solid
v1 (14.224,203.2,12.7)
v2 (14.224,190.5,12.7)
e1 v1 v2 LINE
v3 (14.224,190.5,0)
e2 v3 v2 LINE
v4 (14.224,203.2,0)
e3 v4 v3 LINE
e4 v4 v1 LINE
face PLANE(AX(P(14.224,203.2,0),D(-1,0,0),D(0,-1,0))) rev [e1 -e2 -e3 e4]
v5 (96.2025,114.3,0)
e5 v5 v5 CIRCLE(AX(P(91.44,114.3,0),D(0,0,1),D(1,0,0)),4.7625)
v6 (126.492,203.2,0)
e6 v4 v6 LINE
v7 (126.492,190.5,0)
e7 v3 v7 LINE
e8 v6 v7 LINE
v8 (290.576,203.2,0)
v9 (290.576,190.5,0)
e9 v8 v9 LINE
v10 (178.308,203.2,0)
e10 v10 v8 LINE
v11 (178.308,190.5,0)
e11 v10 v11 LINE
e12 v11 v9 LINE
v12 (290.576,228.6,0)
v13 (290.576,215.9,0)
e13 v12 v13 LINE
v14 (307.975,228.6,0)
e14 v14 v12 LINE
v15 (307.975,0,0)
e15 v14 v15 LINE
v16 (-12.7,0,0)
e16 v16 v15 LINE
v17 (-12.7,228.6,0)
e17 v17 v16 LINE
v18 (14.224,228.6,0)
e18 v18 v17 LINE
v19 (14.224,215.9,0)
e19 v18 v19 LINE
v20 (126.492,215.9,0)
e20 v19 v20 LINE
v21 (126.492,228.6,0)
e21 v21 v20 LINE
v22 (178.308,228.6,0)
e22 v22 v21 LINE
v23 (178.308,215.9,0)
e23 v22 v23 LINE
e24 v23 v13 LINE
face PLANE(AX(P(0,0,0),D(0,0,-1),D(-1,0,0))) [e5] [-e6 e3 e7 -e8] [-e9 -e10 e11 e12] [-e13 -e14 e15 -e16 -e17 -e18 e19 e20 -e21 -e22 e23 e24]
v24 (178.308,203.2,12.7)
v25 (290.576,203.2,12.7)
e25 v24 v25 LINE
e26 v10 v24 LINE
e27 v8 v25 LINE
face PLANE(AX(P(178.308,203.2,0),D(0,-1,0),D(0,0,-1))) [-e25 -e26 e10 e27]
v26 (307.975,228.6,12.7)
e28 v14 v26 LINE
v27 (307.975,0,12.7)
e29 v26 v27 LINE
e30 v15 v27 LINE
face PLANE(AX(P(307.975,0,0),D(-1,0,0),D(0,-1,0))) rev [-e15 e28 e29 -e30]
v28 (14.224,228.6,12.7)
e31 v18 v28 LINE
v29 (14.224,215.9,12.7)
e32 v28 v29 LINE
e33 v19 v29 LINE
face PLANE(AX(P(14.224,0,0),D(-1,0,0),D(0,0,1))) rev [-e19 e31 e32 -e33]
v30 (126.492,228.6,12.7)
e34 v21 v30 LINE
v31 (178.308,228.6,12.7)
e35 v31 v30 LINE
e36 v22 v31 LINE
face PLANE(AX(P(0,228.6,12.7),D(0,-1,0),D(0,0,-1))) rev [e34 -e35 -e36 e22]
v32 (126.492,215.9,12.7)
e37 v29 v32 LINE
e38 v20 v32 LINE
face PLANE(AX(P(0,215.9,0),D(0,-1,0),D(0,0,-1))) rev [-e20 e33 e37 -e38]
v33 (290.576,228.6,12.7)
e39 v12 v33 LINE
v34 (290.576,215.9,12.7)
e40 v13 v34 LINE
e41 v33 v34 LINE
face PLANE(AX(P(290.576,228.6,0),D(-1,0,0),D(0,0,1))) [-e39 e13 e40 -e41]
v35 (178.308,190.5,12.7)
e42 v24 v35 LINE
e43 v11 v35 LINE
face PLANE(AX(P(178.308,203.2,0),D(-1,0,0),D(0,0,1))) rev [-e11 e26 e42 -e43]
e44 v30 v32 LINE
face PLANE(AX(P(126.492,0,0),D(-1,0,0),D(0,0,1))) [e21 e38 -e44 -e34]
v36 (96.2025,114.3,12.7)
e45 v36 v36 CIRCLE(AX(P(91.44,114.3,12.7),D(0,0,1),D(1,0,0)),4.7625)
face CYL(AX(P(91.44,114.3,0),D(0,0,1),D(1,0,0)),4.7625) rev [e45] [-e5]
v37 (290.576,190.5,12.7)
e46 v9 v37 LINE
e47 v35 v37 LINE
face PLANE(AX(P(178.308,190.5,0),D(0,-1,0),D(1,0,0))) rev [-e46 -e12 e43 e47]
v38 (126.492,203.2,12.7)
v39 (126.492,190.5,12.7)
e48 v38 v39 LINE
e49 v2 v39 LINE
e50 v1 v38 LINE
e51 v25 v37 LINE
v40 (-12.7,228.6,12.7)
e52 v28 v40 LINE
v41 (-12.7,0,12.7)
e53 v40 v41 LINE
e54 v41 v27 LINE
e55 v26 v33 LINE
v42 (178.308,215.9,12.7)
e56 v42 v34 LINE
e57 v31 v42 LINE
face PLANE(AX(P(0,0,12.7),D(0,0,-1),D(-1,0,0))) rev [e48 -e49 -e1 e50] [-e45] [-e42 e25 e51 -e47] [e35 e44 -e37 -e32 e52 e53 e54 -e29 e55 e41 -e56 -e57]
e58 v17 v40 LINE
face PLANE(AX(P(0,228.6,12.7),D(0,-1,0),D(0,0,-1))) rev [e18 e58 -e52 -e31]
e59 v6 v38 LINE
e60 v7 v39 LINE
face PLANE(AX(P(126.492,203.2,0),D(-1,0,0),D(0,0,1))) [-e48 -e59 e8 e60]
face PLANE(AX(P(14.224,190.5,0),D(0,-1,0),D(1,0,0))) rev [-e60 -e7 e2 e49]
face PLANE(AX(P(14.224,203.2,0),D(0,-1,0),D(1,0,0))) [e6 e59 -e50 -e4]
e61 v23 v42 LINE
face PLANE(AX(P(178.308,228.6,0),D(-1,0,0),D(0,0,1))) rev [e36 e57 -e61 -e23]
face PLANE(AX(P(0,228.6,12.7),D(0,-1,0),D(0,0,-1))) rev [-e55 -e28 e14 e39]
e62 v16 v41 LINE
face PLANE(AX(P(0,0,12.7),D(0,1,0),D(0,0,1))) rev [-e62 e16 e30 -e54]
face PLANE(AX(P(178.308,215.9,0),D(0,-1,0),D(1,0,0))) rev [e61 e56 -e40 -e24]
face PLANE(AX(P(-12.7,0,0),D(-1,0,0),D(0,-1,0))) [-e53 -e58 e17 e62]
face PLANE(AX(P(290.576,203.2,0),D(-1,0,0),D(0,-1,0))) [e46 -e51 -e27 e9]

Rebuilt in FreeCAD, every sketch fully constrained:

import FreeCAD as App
import Part
import Sketcher

V = App.Vector
Q = App.Units.Quantity


def add_polygon(sketch, points):
    """Adds a closed chain of lines whose ends are joined by coincident constraints."""
    first, n = sketch.GeometryCount, len(points)
    for a, b in zip(points, points[1:] + points[:1]):
        sketch.addGeometry(Part.LineSegment(App.Vector(*a, 0), App.Vector(*b, 0)), False)
    for i in range(n):
        sketch.addConstraint(Sketcher.Constraint("Coincident", first + i, 2, first + (i + 1) % n, 1))

doc = App.newDocument("Part")
body = doc.addObject("PartDesign::Body", "Body")

sketch1 = body.newObject("Sketcher::SketchObject", "Sketch")
sketch1.AttachmentSupport = (doc.getObject("XY_Plane"), [""])
sketch1.MapMode = "FlatFace"
add_polygon(sketch1, [(0, 228.6), (0, 0), (304.8, 0), (304.8, 228.6)])
sketch1.addConstraint([
    Sketcher.Constraint("Vertical", 0),
    Sketcher.Constraint("Horizontal", 1),
    Sketcher.Constraint("Vertical", 2),
    Sketcher.Constraint("Horizontal", 3),
    Sketcher.Constraint("Coincident", 0, 2, -1, 1),
    Sketcher.Constraint("DistanceX", 1, 1, 1, 2, Q("12 in")),
    Sketcher.Constraint("DistanceY", 0, 2, 0, 1, Q("9 in")),
])
pad1 = body.newObject("PartDesign::Pad", "Pad")
pad1.Profile = sketch1
pad1.Length = Q("0.5 in")

sketch2 = body.newObject("Sketcher::SketchObject", "Sketch001")
sketch2.AttachmentSupport = (doc.getObject("XY_Plane"), [""])
sketch2.MapMode = "FlatFace"
sketch2.AttachmentOffset = App.Placement(V(0, 0, 0.5 * 25.4), App.Rotation())
sketch2.addGeometry(Part.Circle(V(91.44, 114.3, 0), V(0, 0, 1), 4.7625), False)
sketch2.addConstraint([
    Sketcher.Constraint("Diameter", 0, Q("0.375 in")),
    Sketcher.Constraint("DistanceX", -1, 1, 0, 3, Q("3.6 in")),
    Sketcher.Constraint("DistanceY", -1, 1, 0, 3, Q("4.5 in")),
])
pocket1 = body.newObject("PartDesign::Pocket", "Pocket")
pocket1.Profile = sketch2
pocket1.Length = Q("0.5 in")

sketch3 = body.newObject("Sketcher::SketchObject", "Sketch002")
sketch3.AttachmentSupport = (doc.getObject("XY_Plane"), [""])
sketch3.MapMode = "FlatFace"
sketch3.AttachmentOffset = App.Placement(V(0, 0, 0.5 * 25.4), App.Rotation())
add_polygon(sketch3, [(14.224, 228.6), (14.224, 215.9), (126.492, 215.9), (126.492, 228.6)])
add_polygon(sketch3, [(178.308, 228.6), (178.308, 215.9), (290.576, 215.9), (290.576, 228.6)])
add_polygon(sketch3, [(14.224, 203.2), (14.224, 190.5), (126.492, 190.5), (126.492, 203.2)])
add_polygon(sketch3, [(178.308, 203.2), (178.308, 190.5), (290.576, 190.5), (290.576, 203.2)])
sketch3.addConstraint([
    Sketcher.Constraint("Vertical", 0),
    Sketcher.Constraint("Horizontal", 1),
    Sketcher.Constraint("Vertical", 2),
    Sketcher.Constraint("Horizontal", 3),
    Sketcher.Constraint("Vertical", 4),
    Sketcher.Constraint("Horizontal", 5),
    Sketcher.Constraint("Vertical", 6),
    Sketcher.Constraint("Horizontal", 7),
    Sketcher.Constraint("Vertical", 8),
    Sketcher.Constraint("Horizontal", 9),
    Sketcher.Constraint("Vertical", 10),
    Sketcher.Constraint("Horizontal", 11),
    Sketcher.Constraint("Vertical", 12),
    Sketcher.Constraint("Horizontal", 13),
    Sketcher.Constraint("Vertical", 14),
    Sketcher.Constraint("Horizontal", 15),
    Sketcher.Constraint("Horizontal", 1, 2, 4, 2),
    Sketcher.Constraint("Horizontal", 3, 2, 6, 2),
    Sketcher.Constraint("Horizontal", 9, 2, 12, 2),
    Sketcher.Constraint("Horizontal", 11, 2, 14, 2),
    Sketcher.Constraint("Vertical", 3, 2, 8, 2),
    Sketcher.Constraint("Vertical", 2, 2, 9, 2),
    Sketcher.Constraint("Vertical", 7, 2, 12, 2),
    Sketcher.Constraint("Vertical", 6, 2, 13, 2),
    Sketcher.Constraint("Equal", 3, 5),
    Sketcher.Constraint("Equal", 6, 8),
    Sketcher.Constraint("DistanceY", 0, 2, 0, 1, Q("0.5 in")),
    Sketcher.Constraint("DistanceY", -1, 1, 2, 2, Q("9 in")),
    Sketcher.Constraint("DistanceY", -1, 1, 10, 2, Q("8 in")),
    Sketcher.Constraint("DistanceX", 1, 1, 1, 2, Q("4.42 in")),
    Sketcher.Constraint("DistanceX", -1, 1, 0, 2, Q("0.56 in")),
    Sketcher.Constraint("DistanceX", -1, 1, 4, 2, Q("7.02 in")),
])
pocket2 = body.newObject("PartDesign::Pocket", "Pocket001")
pocket2.Profile = sketch3
pocket2.Length = Q("0.5 in")

sketch4 = body.newObject("Sketcher::SketchObject", "Sketch003")
sketch4.AttachmentSupport = (doc.getObject("XY_Plane"), [""])
sketch4.MapMode = "FlatFace"
sketch4.AttachmentOffset = App.Placement(V(0, 0, 0.5 * 25.4), App.Rotation())
add_polygon(sketch4, [(-12.7, 228.6), (-12.7, 0), (0, 0), (0, 228.6)])
add_polygon(sketch4, [(304.8, 228.6), (304.8, 0), (307.975, 0), (307.975, 228.6)])
sketch4.addConstraint([
    Sketcher.Constraint("Vertical", 0),
    Sketcher.Constraint("Horizontal", 1),
    Sketcher.Constraint("Vertical", 2),
    Sketcher.Constraint("Horizontal", 3),
    Sketcher.Constraint("Vertical", 4),
    Sketcher.Constraint("Horizontal", 5),
    Sketcher.Constraint("Vertical", 6),
    Sketcher.Constraint("Horizontal", 7),
    Sketcher.Constraint("Coincident", 1, 2, -1, 1),
    Sketcher.Constraint("PointOnObject", 4, 2, -1),
    Sketcher.Constraint("Horizontal", 3, 2, 6, 2),
    Sketcher.Constraint("DistanceY", 0, 2, 0, 1, Q("9 in")),
    Sketcher.Constraint("DistanceX", 1, 1, 1, 2, Q("0.5 in")),
    Sketcher.Constraint("DistanceX", -1, 1, 4, 2, Q("12 in")),
    Sketcher.Constraint("DistanceX", 5, 1, 5, 2, Q("0.125 in")),
])
pad2 = body.newObject("PartDesign::Pad", "Pad001")
pad2.Profile = sketch4
pad2.Length = Q("0.5 in")
pad2.Reversed = True

doc.recompute()
